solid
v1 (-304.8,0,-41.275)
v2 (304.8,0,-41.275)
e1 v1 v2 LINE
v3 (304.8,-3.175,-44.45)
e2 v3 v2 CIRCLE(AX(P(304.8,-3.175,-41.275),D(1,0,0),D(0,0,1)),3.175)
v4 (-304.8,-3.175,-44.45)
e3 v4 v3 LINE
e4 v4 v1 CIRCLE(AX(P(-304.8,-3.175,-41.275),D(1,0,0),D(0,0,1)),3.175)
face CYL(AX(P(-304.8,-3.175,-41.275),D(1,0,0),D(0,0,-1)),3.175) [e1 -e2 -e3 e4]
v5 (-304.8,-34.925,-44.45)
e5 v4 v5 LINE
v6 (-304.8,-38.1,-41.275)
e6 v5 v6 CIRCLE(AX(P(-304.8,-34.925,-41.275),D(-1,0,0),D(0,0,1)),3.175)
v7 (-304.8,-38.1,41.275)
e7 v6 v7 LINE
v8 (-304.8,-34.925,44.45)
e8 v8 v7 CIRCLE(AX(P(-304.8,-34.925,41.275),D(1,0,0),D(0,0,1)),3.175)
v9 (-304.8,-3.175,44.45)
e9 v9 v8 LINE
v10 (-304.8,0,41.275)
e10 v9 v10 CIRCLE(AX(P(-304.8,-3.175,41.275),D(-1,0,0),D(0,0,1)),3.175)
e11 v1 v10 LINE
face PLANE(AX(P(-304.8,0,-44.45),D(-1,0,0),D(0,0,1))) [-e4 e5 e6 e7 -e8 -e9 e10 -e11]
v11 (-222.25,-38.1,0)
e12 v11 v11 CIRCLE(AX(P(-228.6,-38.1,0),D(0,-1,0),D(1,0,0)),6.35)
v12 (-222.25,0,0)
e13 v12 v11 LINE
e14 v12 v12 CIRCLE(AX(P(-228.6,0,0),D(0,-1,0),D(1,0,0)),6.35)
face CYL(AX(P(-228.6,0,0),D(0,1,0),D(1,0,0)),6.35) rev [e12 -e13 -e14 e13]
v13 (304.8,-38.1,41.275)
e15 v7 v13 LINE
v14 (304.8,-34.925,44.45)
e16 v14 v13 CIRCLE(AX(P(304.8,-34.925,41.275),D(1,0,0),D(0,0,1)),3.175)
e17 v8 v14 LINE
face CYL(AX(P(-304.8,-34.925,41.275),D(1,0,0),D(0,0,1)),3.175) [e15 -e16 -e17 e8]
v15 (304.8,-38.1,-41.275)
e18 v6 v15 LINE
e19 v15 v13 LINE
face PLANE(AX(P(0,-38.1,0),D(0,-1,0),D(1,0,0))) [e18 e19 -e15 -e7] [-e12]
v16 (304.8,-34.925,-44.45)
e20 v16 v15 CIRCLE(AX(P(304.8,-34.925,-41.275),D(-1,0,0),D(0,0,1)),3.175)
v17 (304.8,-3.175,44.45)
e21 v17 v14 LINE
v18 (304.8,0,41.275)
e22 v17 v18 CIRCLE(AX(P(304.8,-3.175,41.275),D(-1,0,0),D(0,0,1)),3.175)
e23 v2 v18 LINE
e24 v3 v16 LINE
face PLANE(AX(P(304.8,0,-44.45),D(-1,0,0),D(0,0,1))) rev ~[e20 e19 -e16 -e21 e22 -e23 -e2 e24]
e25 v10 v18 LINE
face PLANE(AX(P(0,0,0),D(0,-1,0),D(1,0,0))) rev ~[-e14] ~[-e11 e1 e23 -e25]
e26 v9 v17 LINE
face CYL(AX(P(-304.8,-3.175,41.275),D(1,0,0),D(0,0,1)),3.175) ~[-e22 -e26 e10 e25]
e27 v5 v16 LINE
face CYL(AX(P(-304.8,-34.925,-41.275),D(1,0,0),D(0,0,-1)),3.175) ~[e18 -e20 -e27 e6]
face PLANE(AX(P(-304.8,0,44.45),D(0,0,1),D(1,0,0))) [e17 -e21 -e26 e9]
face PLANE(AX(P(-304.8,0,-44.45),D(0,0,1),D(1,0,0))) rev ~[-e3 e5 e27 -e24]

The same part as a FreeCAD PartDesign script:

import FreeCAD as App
import Part
import Sketcher
from FreeCAD import Vector
Q = App.Units.Quantity


def edges_at(feature, points):
    """Names of the edges that pass closest to the given points."""
    edges = feature.Shape.Edges
    near = lambda p: min(range(len(edges)), key=lambda i: edges[i].distToShape(Part.Vertex(*p))[0])
    return sorted({f"Edge{near(p) + 1}" for p in points})

doc = App.newDocument("Part")
params = doc.addObject("Spreadsheet::Sheet", "Params")
for row, (alias, value) in enumerate([
    ("sketch1_diameter", "0.5 in"),
    ("sketch1_width", "24 in"),
    ("sketch1_height", "3.5 in"),
    ("pad1_length", "1.5 in"),
    ("fillet_radius", "0.125 in"),
], start=1):
    params.set(f"A{row}", alias)
    params.set(f"B{row}", "=" + value)
    params.setAlias(f"B{row}", alias)

body = doc.addObject("PartDesign::Body", "Body")

sketch1 = body.newObject("Sketcher::SketchObject", "Sketch")
sketch1.AttachmentSupport = (doc.getObject("XZ_Plane"), [""])
sketch1.MapMode = "FlatFace"
sketch1.addGeometry([
    Part.LineSegment(Vector(-305, 44, 0), Vector(-305, -44, 0)),
    Part.LineSegment(Vector(-305, -44, 0), Vector(305, -44, 0)),
    Part.LineSegment(Vector(305, -44, 0), Vector(305, 44, 0)),
    Part.LineSegment(Vector(305, 44, 0), Vector(-305, 44, 0)),
    Part.Circle(Vector(-229, 0, 0), Vector(0, 0, 1), 6),
], False)
sketch1.addConstraint([
    Sketcher.Constraint("Coincident", 0, 2, 1, 1),
    Sketcher.Constraint("Coincident", 1, 2, 2, 1),
    Sketcher.Constraint("Coincident", 2, 2, 3, 1),
    Sketcher.Constraint("Coincident", 3, 2, 0, 1),
    Sketcher.Constraint("Vertical", 0),
    Sketcher.Constraint("Horizontal", 1),
    Sketcher.Constraint("Vertical", 2),
    Sketcher.Constraint("Horizontal", 3),
    Sketcher.Constraint("Symmetric", 0, 2, 2, 2, -1, 1),
    Sketcher.Constraint("PointOnObject", 4, 3, -1),
    Sketcher.Constraint("Diameter", 4, Q("0.5 in")),
    Sketcher.Constraint("DistanceX", 1, 1, 1, 2, Q("24 in")),
    Sketcher.Constraint("DistanceY", 0, 2, 0, 1, Q("3.5 in")),
    Sketcher.Constraint("DistanceX", 4, 3, -1, 1, Q("9 in")),
])
sketch1.setExpression("Constraints[10]", "Params.sketch1_diameter")
sketch1.setExpression("Constraints[11]", "Params.sketch1_width")
sketch1.setExpression("Constraints[12]", "Params.sketch1_height")
pad1 = body.newObject("PartDesign::Pad", "Pad")
pad1.Profile = sketch1
pad1.setExpression("Length", "Params.pad1_length")
doc.recompute()

fillet = body.newObject("PartDesign::Fillet", "Fillet")
fillet.Base = (pad1, edges_at(pad1, [
    (0, -38.1, 44.45),
    (0, -38.1, -44.45),
    (0, 0, 44.45),
    (0, 0, -44.45),
]))
fillet.setExpression("Radius", "Params.fillet_radius")

doc.recompute()
